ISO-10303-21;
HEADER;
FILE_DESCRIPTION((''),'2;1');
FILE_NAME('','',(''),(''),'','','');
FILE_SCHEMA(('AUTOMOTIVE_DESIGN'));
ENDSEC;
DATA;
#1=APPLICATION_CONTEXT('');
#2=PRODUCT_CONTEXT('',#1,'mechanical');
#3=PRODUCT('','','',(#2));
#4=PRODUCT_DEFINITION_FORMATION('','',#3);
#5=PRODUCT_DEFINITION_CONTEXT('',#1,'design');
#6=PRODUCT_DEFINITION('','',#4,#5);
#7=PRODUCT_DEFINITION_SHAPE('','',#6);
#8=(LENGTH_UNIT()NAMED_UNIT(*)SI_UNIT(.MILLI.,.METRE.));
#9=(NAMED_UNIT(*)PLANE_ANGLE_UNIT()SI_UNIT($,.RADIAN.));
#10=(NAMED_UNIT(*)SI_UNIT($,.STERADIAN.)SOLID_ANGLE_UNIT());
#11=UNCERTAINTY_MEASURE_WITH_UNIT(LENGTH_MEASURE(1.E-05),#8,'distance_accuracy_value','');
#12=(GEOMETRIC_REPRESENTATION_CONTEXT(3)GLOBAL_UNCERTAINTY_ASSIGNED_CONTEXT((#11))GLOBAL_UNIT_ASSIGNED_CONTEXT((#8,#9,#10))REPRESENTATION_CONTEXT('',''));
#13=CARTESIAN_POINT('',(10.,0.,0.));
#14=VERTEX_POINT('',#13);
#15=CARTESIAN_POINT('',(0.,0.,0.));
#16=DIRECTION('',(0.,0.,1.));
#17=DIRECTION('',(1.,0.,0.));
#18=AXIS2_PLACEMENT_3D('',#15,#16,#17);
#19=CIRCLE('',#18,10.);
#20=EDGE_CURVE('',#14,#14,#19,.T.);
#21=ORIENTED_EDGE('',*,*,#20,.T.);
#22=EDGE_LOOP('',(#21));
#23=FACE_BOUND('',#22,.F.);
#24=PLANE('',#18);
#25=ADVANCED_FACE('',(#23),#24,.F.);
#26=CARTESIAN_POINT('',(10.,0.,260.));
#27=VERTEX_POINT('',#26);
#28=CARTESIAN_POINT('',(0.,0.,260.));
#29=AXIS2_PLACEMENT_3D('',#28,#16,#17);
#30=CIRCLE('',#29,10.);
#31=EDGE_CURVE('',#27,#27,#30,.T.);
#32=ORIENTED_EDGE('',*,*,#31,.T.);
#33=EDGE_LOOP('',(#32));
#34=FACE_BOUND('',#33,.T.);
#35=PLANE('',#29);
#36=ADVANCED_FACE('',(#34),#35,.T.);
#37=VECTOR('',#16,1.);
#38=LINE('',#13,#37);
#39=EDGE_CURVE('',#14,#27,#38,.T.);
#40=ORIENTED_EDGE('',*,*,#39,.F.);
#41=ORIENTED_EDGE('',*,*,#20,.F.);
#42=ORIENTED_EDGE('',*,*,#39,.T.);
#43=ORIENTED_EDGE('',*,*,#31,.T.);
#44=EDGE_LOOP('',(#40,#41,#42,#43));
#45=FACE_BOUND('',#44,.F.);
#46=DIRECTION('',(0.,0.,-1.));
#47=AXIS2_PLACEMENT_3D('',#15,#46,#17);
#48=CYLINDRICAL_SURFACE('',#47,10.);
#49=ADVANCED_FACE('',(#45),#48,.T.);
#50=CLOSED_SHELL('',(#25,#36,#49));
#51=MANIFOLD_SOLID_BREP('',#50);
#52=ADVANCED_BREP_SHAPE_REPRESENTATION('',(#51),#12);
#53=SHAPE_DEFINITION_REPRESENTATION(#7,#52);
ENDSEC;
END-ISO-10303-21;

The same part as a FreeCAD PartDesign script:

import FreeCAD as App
import Part
import Sketcher

V = App.Vector
Q = App.Units.Quantity

doc = App.newDocument("Part")
params = doc.addObject("Spreadsheet::Sheet", "Params")
for row, (alias, value) in enumerate([
    ("sketch1_diameter", "20 mm"),
    ("pad1_length", "260 mm"),
], start=1):
    params.set(f"A{row}", alias)
    params.set(f"B{row}", "=" + value)
    params.setAlias(f"B{row}", alias)

body = doc.addObject("PartDesign::Body", "Body")

# Sketch on XY plane
sketch1 = body.newObject("Sketcher::SketchObject", "Sketch")
sketch1.AttachmentSupport = (doc.getObject("XY_Plane"), [""])
sketch1.MapMode = "FlatFace"
sketch1.addGeometry(Part.Circle(V(0, 0, 0), V(0, 0, 1), 10), False)
sketch1.addConstraint([
    Sketcher.Constraint("Coincident", 0, 3, -1, 1),
    Sketcher.Constraint("Diameter", 0, Q("20 mm")),
])
sketch1.setExpression("Constraints[1]", "Params.sketch1_diameter")
pad1 = body.newObject("PartDesign::Pad", "Pad")
pad1.Profile = sketch1
pad1.setExpression("Length", "Params.pad1_length")

doc.recompute()
